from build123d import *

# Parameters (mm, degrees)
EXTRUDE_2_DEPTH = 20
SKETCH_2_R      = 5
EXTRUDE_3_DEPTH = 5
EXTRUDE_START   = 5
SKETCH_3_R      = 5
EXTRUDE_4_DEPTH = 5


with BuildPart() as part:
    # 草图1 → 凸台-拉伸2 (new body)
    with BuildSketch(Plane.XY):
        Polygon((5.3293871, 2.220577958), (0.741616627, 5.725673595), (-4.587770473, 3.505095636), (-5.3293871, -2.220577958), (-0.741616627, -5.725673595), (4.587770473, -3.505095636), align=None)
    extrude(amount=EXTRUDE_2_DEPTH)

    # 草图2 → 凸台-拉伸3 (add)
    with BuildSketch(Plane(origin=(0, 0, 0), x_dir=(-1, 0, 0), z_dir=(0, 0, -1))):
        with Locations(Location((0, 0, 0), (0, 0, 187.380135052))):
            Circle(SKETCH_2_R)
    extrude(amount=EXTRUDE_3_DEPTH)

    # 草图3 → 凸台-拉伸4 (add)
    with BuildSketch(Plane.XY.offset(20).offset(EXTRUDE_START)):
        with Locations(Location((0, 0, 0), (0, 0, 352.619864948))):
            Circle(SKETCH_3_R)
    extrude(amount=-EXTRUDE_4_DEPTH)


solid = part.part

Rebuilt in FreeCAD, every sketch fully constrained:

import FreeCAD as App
import Part
import Sketcher


def add_polygon(sketch, points):
    """Adds a closed chain of lines whose ends are joined by coincident constraints."""
    first, n = sketch.GeometryCount, len(points)
    for a, b in zip(points, points[1:] + points[:1]):
        sketch.addGeometry(Part.LineSegment(App.Vector(*a, 0), App.Vector(*b, 0)), False)
    for i in range(n):
        sketch.addConstraint(Sketcher.Constraint("Coincident", first + i, 2, first + (i + 1) % n, 1))

doc = App.newDocument("Part")
body = doc.addObject("PartDesign::Body", "Body")

# Sketch on XY plane
sketch1 = body.newObject("Sketcher::SketchObject", "Sketch")
sketch1.AttachmentSupport = (doc.getObject("XY_Plane"), [""])
sketch1.MapMode = "FlatFace"
add_polygon(sketch1, [(5.329387, 2.220578), (0.741617, 5.725674), (-4.58777, 3.505096), (-5.329387, -2.220578), (-0.741617, -5.725674), (4.58777, -3.505096)])  # lines 0-5
sketch1.addConstraint([
    Sketcher.Constraint("Symmetric", 0, 2, 3, 2, -1, 1),
    Sketcher.Constraint("Symmetric", 1, 2, 4, 2, -1, 1),
    Sketcher.Constraint("Symmetric", 2, 2, 5, 2, -1, 1),
    Sketcher.Constraint("Equal", 0, 1),
    Sketcher.Constraint("Equal", 1, 2),
    Sketcher.Constraint("DistanceX", 1, 2, -1, 1, 4.58777),
    Sketcher.Constraint("DistanceY", 2, 2, 0, 2, 7.946252),
    Sketcher.Constraint("DistanceX", 2, 2, 3, 2, 4.58777),
    Sketcher.Constraint("DistanceY", 3, 2, 1, 2, 9.230769),
])
pad1 = body.newObject("PartDesign::Pad", "Pad")
pad1.Profile = sketch1
pad1.Length = 20

# Sketch on XY plane
sketch2 = body.newObject("Sketcher::SketchObject", "Sketch001")
sketch2.AttachmentSupport = (doc.getObject("XY_Plane"), [""])
sketch2.MapMode = "FlatFace"
sketch2.addGeometry(Part.Circle(App.Vector(0, 0, 0), App.Vector(0, 0, 1), 5), False)
sketch2.addConstraint([
    Sketcher.Constraint("Coincident", 0, 3, -1, 1),
    Sketcher.Constraint("Diameter", 0, 10.0),
])
pad2 = body.newObject("PartDesign::Pad", "Pad001")
pad2.Profile = sketch2
pad2.Length = 5
pad2.Reversed = True

# Sketch on XY plane
sketch3 = body.newObject("Sketcher::SketchObject", "Sketch002")
sketch3.AttachmentSupport = (doc.getObject("XY_Plane"), [""])
sketch3.MapMode = "FlatFace"
sketch3.AttachmentOffset = App.Placement(App.Vector(0, 0, 25), App.Rotation())
sketch3.addGeometry(Part.Circle(App.Vector(0, 0, 0), App.Vector(0, 0, 1), 5), False)
sketch3.addConstraint([
    Sketcher.Constraint("Coincident", 0, 3, -1, 1),
    Sketcher.Constraint("Diameter", 0, 10.0),
])
pad3 = body.newObject("PartDesign::Pad", "Pad002")
pad3.Profile = sketch3
pad3.Length = 5
pad3.Reversed = True

doc.recompute()
